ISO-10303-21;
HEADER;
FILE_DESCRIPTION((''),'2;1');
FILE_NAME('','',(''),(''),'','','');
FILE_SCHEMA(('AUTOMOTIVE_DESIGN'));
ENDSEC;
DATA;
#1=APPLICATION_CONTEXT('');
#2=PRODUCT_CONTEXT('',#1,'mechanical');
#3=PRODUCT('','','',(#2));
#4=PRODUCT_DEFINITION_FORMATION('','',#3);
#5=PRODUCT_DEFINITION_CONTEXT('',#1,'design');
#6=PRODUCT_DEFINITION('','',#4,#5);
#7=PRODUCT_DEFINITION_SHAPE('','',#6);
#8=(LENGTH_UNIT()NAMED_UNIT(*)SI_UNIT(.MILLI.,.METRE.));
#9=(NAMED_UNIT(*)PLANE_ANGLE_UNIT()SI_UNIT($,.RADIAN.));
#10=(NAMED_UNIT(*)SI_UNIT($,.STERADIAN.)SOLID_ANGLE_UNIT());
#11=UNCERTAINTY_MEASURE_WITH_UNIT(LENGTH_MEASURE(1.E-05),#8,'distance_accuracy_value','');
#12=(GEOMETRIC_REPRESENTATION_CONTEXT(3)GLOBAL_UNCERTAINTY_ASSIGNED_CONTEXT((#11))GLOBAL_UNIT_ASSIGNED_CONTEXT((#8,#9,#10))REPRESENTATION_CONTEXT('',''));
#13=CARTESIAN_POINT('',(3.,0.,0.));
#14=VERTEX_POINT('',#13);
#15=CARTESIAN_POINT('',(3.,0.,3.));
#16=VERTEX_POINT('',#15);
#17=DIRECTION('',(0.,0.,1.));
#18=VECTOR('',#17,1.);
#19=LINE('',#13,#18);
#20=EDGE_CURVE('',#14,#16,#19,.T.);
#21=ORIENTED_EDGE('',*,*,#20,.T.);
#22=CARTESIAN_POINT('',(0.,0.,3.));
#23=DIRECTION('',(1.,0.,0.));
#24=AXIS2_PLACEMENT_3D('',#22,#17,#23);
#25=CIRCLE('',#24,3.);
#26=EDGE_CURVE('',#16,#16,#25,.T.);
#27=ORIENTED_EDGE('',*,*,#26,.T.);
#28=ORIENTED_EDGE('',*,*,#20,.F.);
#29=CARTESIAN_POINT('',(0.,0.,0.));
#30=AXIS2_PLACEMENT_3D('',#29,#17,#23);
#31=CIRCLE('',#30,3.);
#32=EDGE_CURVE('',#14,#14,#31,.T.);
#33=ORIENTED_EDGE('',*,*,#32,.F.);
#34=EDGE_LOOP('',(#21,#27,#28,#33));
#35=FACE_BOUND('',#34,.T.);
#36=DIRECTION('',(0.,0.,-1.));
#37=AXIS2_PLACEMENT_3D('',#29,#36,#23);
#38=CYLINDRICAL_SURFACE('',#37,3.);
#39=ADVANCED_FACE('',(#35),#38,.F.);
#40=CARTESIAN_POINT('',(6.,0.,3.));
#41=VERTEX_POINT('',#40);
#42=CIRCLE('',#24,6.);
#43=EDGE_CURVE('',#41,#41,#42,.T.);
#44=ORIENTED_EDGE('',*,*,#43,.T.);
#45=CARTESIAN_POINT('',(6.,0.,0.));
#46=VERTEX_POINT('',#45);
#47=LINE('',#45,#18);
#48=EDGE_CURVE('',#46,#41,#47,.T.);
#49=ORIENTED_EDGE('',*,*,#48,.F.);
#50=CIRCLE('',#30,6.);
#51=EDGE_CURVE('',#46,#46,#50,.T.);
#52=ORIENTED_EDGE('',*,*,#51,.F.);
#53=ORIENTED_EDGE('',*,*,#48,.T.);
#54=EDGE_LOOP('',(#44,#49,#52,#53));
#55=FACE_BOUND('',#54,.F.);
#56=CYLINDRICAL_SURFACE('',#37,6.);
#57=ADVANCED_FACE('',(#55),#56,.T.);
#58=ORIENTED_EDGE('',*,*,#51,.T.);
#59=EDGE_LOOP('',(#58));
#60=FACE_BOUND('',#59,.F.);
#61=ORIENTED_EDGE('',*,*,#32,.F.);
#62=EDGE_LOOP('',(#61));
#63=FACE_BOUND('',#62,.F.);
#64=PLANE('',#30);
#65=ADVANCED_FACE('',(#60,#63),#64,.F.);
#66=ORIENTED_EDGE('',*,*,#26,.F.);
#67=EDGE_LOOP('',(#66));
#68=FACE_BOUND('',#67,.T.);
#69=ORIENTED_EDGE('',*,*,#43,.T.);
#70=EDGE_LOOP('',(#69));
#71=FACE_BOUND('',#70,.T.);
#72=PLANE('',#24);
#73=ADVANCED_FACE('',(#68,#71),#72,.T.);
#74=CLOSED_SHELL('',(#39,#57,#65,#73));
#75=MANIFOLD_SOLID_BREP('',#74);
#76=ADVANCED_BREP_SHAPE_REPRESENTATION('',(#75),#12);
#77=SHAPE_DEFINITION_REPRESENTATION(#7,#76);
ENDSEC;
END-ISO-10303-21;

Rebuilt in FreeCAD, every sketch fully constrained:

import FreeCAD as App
import Part
import Sketcher

V = App.Vector
Q = App.Units.Quantity

doc = App.newDocument("Part")
body = doc.addObject("PartDesign::Body", "Body")

# Sketch on XY plane
sketch1 = doc.addObject("Sketcher::SketchObject", "Sketch")
body.addObject(sketch1)
sketch1.AttachmentSupport = (doc.XY_Plane, [""])
sketch1.MapMode = "FlatFace"
sketch1.addGeometry(Part.Circle(V(0, 0, 0), V(0, 0, 1), 6), False)
sketch1.addGeometry(Part.Circle(V(0, 0, 0), V(0, 0, 1), 3), False)
sketch1.addConstraint(Sketcher.Constraint("Coincident", 0, 3, -1, 1))
sketch1.addConstraint(Sketcher.Constraint("Coincident", 1, 3, -1, 1))
sketch1.addConstraint(Sketcher.Constraint("Diameter", 0, Q("12 mm")))
sketch1.addConstraint(Sketcher.Constraint("Diameter", 1, Q("6 mm")))
pad1 = doc.addObject("PartDesign::Pad", "Pad")
body.addObject(pad1)
pad1.Profile = sketch1
pad1.Length = 3

doc.recompute()
